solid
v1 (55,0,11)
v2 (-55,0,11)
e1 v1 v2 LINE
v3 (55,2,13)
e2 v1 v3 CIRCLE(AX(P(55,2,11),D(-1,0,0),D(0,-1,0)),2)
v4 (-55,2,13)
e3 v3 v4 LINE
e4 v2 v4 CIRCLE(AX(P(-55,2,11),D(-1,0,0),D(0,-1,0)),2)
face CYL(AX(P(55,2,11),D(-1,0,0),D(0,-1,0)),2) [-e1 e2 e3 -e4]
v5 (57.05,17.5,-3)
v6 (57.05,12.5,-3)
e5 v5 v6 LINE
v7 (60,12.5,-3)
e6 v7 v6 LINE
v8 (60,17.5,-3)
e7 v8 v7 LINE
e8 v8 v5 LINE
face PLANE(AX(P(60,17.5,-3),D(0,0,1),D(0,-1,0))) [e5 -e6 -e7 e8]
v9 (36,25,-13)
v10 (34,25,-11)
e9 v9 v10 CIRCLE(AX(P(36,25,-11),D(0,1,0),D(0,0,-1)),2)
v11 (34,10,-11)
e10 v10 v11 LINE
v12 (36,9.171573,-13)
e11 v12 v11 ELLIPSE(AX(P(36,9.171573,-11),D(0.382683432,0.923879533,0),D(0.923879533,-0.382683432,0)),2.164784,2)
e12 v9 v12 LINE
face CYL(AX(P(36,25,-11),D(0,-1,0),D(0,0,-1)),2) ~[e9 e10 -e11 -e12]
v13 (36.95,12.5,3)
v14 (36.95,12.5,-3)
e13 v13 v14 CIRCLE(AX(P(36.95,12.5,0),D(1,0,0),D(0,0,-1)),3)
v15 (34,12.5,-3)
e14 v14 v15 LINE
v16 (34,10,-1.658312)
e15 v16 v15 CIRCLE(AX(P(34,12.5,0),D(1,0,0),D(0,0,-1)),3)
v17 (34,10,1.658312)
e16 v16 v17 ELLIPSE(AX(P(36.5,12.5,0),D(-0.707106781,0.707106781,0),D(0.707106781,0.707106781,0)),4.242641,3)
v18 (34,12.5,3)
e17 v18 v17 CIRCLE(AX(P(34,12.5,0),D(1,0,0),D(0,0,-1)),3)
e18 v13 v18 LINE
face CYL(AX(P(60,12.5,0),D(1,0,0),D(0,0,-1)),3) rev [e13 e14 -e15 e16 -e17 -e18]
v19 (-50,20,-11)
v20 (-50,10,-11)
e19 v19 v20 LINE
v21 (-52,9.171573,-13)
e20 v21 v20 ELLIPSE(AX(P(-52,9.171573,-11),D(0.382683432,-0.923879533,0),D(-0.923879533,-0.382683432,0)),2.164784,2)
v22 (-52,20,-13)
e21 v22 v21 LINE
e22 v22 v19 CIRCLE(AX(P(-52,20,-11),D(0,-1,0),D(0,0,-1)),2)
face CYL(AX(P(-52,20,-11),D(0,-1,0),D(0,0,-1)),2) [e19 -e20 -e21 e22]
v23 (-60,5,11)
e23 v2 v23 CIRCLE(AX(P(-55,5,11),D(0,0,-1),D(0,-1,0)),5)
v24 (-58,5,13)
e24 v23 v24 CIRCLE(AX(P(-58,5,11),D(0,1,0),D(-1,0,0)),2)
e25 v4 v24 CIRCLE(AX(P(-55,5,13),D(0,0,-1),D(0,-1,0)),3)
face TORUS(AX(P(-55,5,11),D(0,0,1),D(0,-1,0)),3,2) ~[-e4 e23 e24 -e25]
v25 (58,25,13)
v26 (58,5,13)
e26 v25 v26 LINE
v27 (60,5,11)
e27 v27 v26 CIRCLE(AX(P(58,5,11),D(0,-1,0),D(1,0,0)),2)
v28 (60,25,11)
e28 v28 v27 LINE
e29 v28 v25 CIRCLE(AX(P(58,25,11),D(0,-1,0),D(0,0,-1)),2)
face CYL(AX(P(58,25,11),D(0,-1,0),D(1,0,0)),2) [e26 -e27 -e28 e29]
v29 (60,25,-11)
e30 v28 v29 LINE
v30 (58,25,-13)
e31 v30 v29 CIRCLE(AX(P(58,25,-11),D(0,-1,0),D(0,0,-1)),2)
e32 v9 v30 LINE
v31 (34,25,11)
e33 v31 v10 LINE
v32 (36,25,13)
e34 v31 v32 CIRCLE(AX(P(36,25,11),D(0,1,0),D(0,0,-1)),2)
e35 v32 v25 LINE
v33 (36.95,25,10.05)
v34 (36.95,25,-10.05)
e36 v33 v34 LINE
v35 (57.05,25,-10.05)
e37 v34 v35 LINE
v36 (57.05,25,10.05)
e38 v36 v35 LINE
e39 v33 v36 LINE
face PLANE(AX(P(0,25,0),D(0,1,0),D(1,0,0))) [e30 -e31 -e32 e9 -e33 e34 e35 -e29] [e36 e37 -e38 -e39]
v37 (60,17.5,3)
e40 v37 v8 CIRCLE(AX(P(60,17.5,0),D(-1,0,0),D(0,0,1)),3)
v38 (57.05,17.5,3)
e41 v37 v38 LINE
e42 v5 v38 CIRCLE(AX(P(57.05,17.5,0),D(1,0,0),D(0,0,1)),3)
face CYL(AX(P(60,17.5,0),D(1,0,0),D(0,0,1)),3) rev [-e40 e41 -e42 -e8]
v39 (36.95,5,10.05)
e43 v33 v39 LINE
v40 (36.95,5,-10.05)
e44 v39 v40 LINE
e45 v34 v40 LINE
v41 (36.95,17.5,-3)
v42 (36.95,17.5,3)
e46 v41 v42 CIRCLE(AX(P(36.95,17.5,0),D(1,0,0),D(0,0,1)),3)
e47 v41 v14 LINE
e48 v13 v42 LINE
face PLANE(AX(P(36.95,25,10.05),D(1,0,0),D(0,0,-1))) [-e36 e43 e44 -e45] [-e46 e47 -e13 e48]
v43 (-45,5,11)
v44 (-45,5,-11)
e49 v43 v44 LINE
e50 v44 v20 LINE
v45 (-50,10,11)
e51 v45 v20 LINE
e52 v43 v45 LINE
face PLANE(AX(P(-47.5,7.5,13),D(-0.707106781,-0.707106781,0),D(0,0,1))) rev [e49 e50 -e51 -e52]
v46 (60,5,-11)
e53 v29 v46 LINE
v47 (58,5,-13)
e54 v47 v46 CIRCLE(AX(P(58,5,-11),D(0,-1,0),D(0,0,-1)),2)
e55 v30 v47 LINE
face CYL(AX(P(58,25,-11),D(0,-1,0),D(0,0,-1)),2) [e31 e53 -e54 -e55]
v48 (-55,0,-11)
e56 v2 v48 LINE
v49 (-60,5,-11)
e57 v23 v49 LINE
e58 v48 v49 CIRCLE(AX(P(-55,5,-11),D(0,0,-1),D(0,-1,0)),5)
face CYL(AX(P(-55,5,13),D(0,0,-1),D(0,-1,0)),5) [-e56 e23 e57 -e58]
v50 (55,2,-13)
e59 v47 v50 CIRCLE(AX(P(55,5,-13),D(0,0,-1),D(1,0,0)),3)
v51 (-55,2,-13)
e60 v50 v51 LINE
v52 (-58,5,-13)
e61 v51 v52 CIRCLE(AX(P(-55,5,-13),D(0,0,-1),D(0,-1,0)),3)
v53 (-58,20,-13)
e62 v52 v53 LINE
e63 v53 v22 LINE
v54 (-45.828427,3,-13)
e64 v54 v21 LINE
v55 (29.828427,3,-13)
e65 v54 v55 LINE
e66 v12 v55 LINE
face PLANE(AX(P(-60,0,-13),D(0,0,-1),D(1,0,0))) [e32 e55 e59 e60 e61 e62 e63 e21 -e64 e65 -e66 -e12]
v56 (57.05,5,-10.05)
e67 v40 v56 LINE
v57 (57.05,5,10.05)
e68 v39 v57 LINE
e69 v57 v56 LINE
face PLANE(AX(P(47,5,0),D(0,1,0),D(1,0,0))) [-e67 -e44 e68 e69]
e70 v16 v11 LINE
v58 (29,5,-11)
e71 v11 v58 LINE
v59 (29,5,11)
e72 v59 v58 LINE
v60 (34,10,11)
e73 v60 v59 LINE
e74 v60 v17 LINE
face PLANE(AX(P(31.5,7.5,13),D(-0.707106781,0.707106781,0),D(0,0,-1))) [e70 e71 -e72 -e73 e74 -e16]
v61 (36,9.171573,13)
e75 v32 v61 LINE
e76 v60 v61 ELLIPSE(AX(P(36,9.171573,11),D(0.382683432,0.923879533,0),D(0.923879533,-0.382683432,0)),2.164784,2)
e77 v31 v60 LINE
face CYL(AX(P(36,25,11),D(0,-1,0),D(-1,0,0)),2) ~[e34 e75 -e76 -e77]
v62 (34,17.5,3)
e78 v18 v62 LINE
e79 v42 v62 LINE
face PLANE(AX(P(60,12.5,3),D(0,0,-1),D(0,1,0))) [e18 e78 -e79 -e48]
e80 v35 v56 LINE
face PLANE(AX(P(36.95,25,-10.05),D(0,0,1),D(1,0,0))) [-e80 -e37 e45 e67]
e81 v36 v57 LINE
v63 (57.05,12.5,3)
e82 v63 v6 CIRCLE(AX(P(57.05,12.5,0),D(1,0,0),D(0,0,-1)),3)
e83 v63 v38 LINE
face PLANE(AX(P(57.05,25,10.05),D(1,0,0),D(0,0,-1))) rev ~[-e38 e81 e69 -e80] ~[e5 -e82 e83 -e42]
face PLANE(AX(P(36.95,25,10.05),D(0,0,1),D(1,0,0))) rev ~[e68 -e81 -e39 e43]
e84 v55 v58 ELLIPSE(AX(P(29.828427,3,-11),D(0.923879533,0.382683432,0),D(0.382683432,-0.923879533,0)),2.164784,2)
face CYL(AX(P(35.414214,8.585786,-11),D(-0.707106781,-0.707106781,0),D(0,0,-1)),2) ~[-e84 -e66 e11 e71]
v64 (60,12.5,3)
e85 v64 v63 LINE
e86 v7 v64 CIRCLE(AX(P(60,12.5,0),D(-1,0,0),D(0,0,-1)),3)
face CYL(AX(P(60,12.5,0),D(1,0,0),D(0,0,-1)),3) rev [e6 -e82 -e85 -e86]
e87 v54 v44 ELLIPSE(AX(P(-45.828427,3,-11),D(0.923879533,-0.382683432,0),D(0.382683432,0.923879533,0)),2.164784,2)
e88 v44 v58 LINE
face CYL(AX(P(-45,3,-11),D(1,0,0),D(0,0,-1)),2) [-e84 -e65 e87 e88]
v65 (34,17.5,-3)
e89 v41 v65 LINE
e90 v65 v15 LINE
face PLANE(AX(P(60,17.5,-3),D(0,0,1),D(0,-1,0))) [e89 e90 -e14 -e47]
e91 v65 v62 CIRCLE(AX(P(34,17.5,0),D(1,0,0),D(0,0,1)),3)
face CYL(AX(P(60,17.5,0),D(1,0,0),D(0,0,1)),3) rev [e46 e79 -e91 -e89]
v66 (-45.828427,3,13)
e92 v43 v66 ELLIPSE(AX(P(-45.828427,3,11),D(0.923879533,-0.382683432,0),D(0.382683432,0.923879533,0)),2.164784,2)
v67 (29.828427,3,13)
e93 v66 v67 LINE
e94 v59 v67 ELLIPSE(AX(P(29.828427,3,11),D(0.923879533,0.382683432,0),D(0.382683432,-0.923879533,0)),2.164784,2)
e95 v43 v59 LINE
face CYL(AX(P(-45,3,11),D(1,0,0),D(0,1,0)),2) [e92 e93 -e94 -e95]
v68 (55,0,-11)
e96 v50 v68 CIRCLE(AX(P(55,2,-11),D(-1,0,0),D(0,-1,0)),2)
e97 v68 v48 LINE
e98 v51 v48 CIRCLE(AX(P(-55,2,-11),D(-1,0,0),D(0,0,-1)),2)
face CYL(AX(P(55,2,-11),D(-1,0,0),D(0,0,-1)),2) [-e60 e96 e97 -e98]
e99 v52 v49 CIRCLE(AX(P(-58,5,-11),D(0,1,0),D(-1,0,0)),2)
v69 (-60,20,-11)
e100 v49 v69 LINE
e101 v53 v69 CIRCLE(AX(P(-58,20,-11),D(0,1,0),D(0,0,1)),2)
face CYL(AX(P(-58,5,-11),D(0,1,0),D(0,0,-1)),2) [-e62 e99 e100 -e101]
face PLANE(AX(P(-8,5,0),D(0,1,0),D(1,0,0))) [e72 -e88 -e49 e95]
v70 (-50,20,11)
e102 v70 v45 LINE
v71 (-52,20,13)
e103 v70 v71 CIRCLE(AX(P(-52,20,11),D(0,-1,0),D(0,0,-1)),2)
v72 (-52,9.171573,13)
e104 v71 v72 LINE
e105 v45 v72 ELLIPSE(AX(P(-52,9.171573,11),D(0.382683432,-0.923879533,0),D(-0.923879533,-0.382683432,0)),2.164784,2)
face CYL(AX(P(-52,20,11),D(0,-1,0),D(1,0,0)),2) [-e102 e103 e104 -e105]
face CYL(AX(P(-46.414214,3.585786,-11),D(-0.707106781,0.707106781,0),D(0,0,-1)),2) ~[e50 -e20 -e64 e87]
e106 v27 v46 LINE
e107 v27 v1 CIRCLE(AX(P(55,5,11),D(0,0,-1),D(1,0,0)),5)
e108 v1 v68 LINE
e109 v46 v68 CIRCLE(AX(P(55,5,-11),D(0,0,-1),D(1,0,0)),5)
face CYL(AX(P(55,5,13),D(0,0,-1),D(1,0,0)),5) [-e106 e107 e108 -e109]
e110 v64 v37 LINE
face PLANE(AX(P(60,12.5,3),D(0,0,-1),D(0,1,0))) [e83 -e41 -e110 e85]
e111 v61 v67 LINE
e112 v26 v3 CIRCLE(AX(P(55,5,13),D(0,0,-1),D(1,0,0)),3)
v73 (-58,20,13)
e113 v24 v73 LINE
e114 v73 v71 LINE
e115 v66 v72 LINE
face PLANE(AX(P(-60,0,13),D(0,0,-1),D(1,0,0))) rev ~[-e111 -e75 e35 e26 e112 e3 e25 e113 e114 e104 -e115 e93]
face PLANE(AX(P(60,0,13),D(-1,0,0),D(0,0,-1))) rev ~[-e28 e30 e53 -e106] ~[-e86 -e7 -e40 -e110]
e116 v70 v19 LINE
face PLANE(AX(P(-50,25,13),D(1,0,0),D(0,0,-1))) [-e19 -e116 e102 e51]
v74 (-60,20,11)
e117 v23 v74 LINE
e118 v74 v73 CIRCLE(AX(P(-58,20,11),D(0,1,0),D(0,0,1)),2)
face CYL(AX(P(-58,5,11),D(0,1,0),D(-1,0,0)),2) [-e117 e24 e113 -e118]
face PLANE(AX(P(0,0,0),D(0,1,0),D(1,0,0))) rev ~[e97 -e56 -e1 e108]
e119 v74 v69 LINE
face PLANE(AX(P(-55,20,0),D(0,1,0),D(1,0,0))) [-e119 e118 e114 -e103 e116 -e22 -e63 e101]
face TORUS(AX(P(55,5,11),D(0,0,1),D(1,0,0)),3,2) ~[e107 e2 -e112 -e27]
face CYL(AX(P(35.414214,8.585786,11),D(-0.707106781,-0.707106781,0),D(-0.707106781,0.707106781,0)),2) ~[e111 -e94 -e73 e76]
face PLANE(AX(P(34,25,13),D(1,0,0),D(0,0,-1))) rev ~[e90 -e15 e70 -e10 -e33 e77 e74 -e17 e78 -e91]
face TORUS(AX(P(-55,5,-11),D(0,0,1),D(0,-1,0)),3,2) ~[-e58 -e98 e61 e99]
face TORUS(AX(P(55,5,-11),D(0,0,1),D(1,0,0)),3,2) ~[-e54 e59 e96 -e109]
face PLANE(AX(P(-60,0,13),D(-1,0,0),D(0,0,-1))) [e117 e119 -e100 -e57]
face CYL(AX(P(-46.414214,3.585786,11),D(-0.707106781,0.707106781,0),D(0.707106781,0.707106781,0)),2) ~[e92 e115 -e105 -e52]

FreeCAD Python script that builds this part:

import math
import FreeCAD as App
import Part
import Sketcher
from FreeCAD import Vector
Q = App.Units.Quantity


def edges_at(feature, points):
    """Names of the edges that pass closest to the given points."""
    edges = feature.Shape.Edges
    near = lambda p: min(range(len(edges)), key=lambda i: edges[i].distToShape(Part.Vertex(*p))[0])
    return sorted({f"Edge{near(p) + 1}" for p in points})


def add_polygon(sketch, points):
    """Adds a closed chain of lines whose ends are joined by coincident constraints."""
    first, n = sketch.GeometryCount, len(points)
    for a, b in zip(points, points[1:] + points[:1]):
        sketch.addGeometry(Part.LineSegment(App.Vector(*a, 0), App.Vector(*b, 0)), False)
    for i in range(n):
        sketch.addConstraint(Sketcher.Constraint("Coincident", first + i, 2, first + (i + 1) % n, 1))

doc = App.newDocument("Part")
body = doc.addObject("PartDesign::Body", "Body")

sketch1 = doc.addObject("Sketcher::SketchObject", "Sketch")
body.addObject(sketch1)
sketch1.AttachmentSupport = (doc.XZ_Plane, [""])
sketch1.MapMode = "FlatFace"
add_polygon(sketch1, [(-60, -13), (-60, 13), (60, 13), (60, -13)])
sketch1.addConstraint(Sketcher.Constraint("Vertical", 0))
sketch1.addConstraint(Sketcher.Constraint("Horizontal", 1))
sketch1.addConstraint(Sketcher.Constraint("Vertical", 2))
sketch1.addConstraint(Sketcher.Constraint("Horizontal", 3))
sketch1.addConstraint(Sketcher.Constraint("Symmetric", 0, 2, 2, 2, -1, 1))
sketch1.addConstraint(Sketcher.Constraint("DistanceX", 1, 1, 1, 2, Q("120 mm")))
sketch1.addConstraint(Sketcher.Constraint("DistanceY", 0, 1, 0, 2, Q("26 mm")))
pad1 = doc.addObject("PartDesign::Pad", "Pad")
body.addObject(pad1)
pad1.Profile = sketch1
pad1.Length = 25
pad1.Reversed = True

sketch2 = doc.addObject("Sketcher::SketchObject", "Sketch001")
body.addObject(sketch2)
sketch2.AttachmentSupport = (doc.XZ_Plane, [""])
sketch2.MapMode = "FlatFace"
sketch2.AttachmentOffset = App.Placement(Vector(0, 0, -25), App.Rotation())
add_polygon(sketch2, [(-50, -13), (-50, 13), (34, 13), (34, -13)])
sketch2.addConstraint(Sketcher.Constraint("Vertical", 0))
sketch2.addConstraint(Sketcher.Constraint("Horizontal", 1))
sketch2.addConstraint(Sketcher.Constraint("Vertical", 2))
sketch2.addConstraint(Sketcher.Constraint("Horizontal", 3))
sketch2.addConstraint(Sketcher.Constraint("DistanceX", 1, 1, 1, 2, Q("84 mm")))
sketch2.addConstraint(Sketcher.Constraint("DistanceY", 0, 1, 0, 2, Q("26 mm")))
sketch2.addConstraint(Sketcher.Constraint("DistanceX", 0, 2, -1, 1, Q("50 mm")))
sketch2.addConstraint(Sketcher.Constraint("DistanceY", -1, 1, 0, 2, Q("13 mm")))
pocket1 = doc.addObject("PartDesign::Pocket", "Pocket")
body.addObject(pocket1)
pocket1.Profile = sketch2
pocket1.Length = 20
pocket1.Reversed = True

sketch3 = doc.addObject("Sketcher::SketchObject", "Sketch002")
body.addObject(sketch3)
sketch3.AttachmentSupport = (doc.XZ_Plane, [""])
sketch3.MapMode = "FlatFace"
sketch3.AttachmentOffset = App.Placement(Vector(0, 0, -25), App.Rotation())
add_polygon(sketch3, [(-60, -13), (-60, 13), (-50, 13), (-50, -13)])
sketch3.addConstraint(Sketcher.Constraint("Vertical", 0))
sketch3.addConstraint(Sketcher.Constraint("Horizontal", 1))
sketch3.addConstraint(Sketcher.Constraint("Vertical", 2))
sketch3.addConstraint(Sketcher.Constraint("Horizontal", 3))
sketch3.addConstraint(Sketcher.Constraint("DistanceX", 1, 1, 1, 2, Q("10 mm")))
sketch3.addConstraint(Sketcher.Constraint("DistanceY", 0, 1, 0, 2, Q("26 mm")))
sketch3.addConstraint(Sketcher.Constraint("DistanceX", 0, 2, -1, 1, Q("60 mm")))
sketch3.addConstraint(Sketcher.Constraint("DistanceY", -1, 1, 0, 2, Q("13 mm")))
pocket2 = doc.addObject("PartDesign::Pocket", "Pocket001")
body.addObject(pocket2)
pocket2.Profile = sketch3
pocket2.Length = 5
pocket2.Reversed = True
doc.recompute()

chamfer = doc.addObject("PartDesign::Chamfer", "Chamfer")
body.addObject(chamfer)
chamfer.Base = (pocket2, edges_at(pocket2, [(-50, 5, 0), (34, 5, 0)]))
chamfer.Size = 5

sketch4 = doc.addObject("Sketcher::SketchObject", "Sketch003")
body.addObject(sketch4)
sketch4.AttachmentSupport = (doc.XZ_Plane, [""])
sketch4.MapMode = "FlatFace"
sketch4.AttachmentOffset = App.Placement(Vector(0, 0, -25), App.Rotation())
add_polygon(sketch4, [(37, -10), (37, 10), (57, 10), (57, -10)])
sketch4.addConstraint(Sketcher.Constraint("Vertical", 0))
sketch4.addConstraint(Sketcher.Constraint("Horizontal", 1))
sketch4.addConstraint(Sketcher.Constraint("Vertical", 2))
sketch4.addConstraint(Sketcher.Constraint("Horizontal", 3))
sketch4.addConstraint(Sketcher.Constraint("Equal", 3, 0))
sketch4.addConstraint(Sketcher.Constraint("DistanceX", 1, 1, 1, 2, Q("20.1 mm")))
sketch4.addConstraint(Sketcher.Constraint("DistanceX", -1, 1, 0, 2, Q("36.95 mm")))
sketch4.addConstraint(Sketcher.Constraint("DistanceY", -1, 1, 0, 2, Q("10.05 mm")))
pocket3 = doc.addObject("PartDesign::Pocket", "Pocket002")
body.addObject(pocket3)
pocket3.Profile = sketch4
pocket3.Length = 20
pocket3.Reversed = True
doc.recompute()

fillet = doc.addObject("PartDesign::Fillet", "Fillet")
body.addObject(fillet)
fillet.Base = (pocket3, edges_at(pocket3, [(60, 0, 0), (-60, 0, 0)]))
fillet.Radius = 5
doc.recompute()

fillet2 = doc.addObject("PartDesign::Fillet", "Fillet001")
body.addObject(fillet2)
fillet2.Base = (fillet, edges_at(fillet, [
    (-60, 12.5, -13),
    (-60, 12.5, 13),
    (-8, 5, 13),
    (-8, 5, -13),
    (-50, 15, 13),
    (-50, 15, -13),
    (34, 17.5, -13),
    (34, 17.5, 13),
    (-47.5, 7.5, 13),
    (-47.5, 7.5, -13),
    (31.5, 7.5, -13),
    (31.5, 7.5, 13),
    (0, 0, -13),
    (-58.536, 1.464, -13),
    (58.536, 1.464, -13),
    (0, 0, 13),
    (-58.536, 1.464, 13),
    (58.536, 1.464, 13),
    (60, 15, -13),
    (60, 15, 13),
]))
fillet2.Radius = 2

sketch5 = doc.addObject("Sketcher::SketchObject", "Sketch004")
body.addObject(sketch5)
sketch5.AttachmentSupport = (doc.YZ_Plane, [""])
sketch5.MapMode = "FlatFace"
sketch5.AttachmentOffset = App.Placement(Vector(0, 0, 60), App.Rotation())
sketch5.addGeometry(Part.LineSegment(Vector(12.5, -3, 0), Vector(17.5, -3, 0)), False)
sketch5.addGeometry(Part.ArcOfCircle(Part.Circle(Vector(17.5, 0, 0), Vector(0, 0, 1), 3), math.radians(-90), math.radians(90)), False)
sketch5.addGeometry(Part.LineSegment(Vector(17.5, 3, 0), Vector(12.5, 3, 0)), False)
sketch5.addGeometry(Part.ArcOfCircle(Part.Circle(Vector(12.5, 0, 0), Vector(0, 0, 1), 3), math.radians(90), math.radians(270)), False)
sketch5.addConstraint(Sketcher.Constraint("Tangent", 0, 2, 1, 1))
sketch5.addConstraint(Sketcher.Constraint("Tangent", 1, 2, 2, 1))
sketch5.addConstraint(Sketcher.Constraint("Tangent", 2, 2, 3, 1))
sketch5.addConstraint(Sketcher.Constraint("Tangent", 3, 2, 0, 1))
sketch5.addConstraint(Sketcher.Constraint("Horizontal", 0))
sketch5.addConstraint(Sketcher.Constraint("Horizontal", 2))
sketch5.addConstraint(Sketcher.Constraint("PointOnObject", 1, 3, -1))
sketch5.addConstraint(Sketcher.Constraint("Radius", 1, Q("3 mm")))
sketch5.addConstraint(Sketcher.Constraint("DistanceX", 0, 1, 0, 2, Q("5 mm")))
sketch5.addConstraint(Sketcher.Constraint("DistanceX", -1, 1, 1, 3, Q("17.5 mm")))
pocket4 = doc.addObject("PartDesign::Pocket", "Pocket003")
body.addObject(pocket4)
pocket4.Profile = sketch5
pocket4.Length = 30

doc.recompute()
